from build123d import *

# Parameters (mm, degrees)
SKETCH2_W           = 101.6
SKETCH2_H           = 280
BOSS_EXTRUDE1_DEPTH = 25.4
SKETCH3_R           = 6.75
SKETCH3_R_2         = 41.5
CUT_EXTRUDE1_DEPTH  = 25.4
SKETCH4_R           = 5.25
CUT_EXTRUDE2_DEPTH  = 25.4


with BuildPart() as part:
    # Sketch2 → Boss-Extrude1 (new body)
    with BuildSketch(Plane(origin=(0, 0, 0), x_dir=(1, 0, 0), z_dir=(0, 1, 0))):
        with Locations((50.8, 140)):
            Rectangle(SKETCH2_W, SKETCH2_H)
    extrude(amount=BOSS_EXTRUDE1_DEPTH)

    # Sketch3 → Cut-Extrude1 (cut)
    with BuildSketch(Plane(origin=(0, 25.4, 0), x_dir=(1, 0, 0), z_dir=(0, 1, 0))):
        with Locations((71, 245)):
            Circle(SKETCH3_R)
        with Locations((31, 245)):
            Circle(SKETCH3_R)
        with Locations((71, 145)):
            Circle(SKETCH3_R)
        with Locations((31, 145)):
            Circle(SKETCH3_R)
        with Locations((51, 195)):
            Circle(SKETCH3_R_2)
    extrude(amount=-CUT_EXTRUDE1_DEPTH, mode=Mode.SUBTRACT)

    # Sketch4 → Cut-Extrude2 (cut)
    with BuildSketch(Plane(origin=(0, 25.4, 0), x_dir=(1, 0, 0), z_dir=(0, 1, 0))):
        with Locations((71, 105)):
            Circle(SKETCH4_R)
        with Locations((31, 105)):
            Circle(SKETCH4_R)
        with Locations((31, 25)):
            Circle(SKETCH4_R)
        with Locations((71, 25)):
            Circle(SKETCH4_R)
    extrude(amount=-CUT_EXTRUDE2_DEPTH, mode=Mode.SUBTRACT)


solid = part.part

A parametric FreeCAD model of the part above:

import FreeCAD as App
import Part
import Sketcher
Q = App.Units.Quantity

doc = App.newDocument("Part")
body = doc.addObject("PartDesign::Body", "Body")

sketch1 = body.newObject("Sketcher::SketchObject", "Sketch")
sketch1.AttachmentSupport = (doc.getObject("XZ_Plane"), [""])
sketch1.MapMode = "FlatFace"
sketch1.addGeometry([
    Part.LineSegment(App.Vector(0, -280, 0), App.Vector(0, 0, 0)),
    Part.LineSegment(App.Vector(0, 0, 0), App.Vector(102, 0, 0)),
    Part.LineSegment(App.Vector(102, 0, 0), App.Vector(102, -280, 0)),
    Part.LineSegment(App.Vector(102, -280, 0), App.Vector(0, -280, 0)),
], False)
sketch1.addConstraint([
    Sketcher.Constraint("Coincident", 0, 2, 1, 1),
    Sketcher.Constraint("Coincident", 1, 2, 2, 1),
    Sketcher.Constraint("Coincident", 2, 2, 3, 1),
    Sketcher.Constraint("Coincident", 3, 2, 0, 1),
    Sketcher.Constraint("Vertical", 0),
    Sketcher.Constraint("Horizontal", 1),
    Sketcher.Constraint("Vertical", 2),
    Sketcher.Constraint("Horizontal", 3),
    Sketcher.Constraint("Coincident", 0, 2, -1, 1),
    Sketcher.Constraint("DistanceY", 0, 1, 0, 2, Q("280 mm")),
    Sketcher.Constraint("DistanceX", 1, 1, 1, 2, Q("101.6 mm")),
])
pad1 = body.newObject("PartDesign::Pad", "Pad")
pad1.Profile = sketch1
pad1.Length = 25.4
pad1.Reversed = True

sketch2 = body.newObject("Sketcher::SketchObject", "Sketch001")
sketch2.AttachmentSupport = (doc.getObject("XZ_Plane"), [""])
sketch2.MapMode = "FlatFace"
sketch2.AttachmentOffset = App.Placement(App.Vector(0, 0, -25.4), App.Rotation())
sketch2.addGeometry([
    Part.Circle(App.Vector(71, -245, 0), App.Vector(0, 0, 1), 7),
    Part.Circle(App.Vector(31, -245, 0), App.Vector(0, 0, 1), 7),
    Part.Circle(App.Vector(71, -145, 0), App.Vector(0, 0, 1), 7),
    Part.Circle(App.Vector(31, -145, 0), App.Vector(0, 0, 1), 7),
    Part.Circle(App.Vector(51, -195, 0), App.Vector(0, 0, 1), 42),
], False)
sketch2.addConstraint([
    Sketcher.Constraint("Equal", 0, 1),
    Sketcher.Constraint("Equal", 1, 2),
    Sketcher.Constraint("Equal", 2, 3),
    Sketcher.Constraint("Horizontal", 0, 3, 1, 3),
    Sketcher.Constraint("Horizontal", 2, 3, 3, 3),
    Sketcher.Constraint("Vertical", 0, 3, 2, 3),
    Sketcher.Constraint("Vertical", 1, 3, 3, 3),
    Sketcher.Constraint("Diameter", 4, Q("83 mm")),
    Sketcher.Constraint("Diameter", 0, Q("13.5 mm")),
    Sketcher.Constraint("DistanceX", -1, 1, 0, 3, Q("71 mm")),
    Sketcher.Constraint("DistanceY", 0, 3, -1, 1, Q("245 mm")),
    Sketcher.Constraint("DistanceX", -1, 1, 1, 3, Q("31 mm")),
    Sketcher.Constraint("DistanceY", 2, 3, -1, 1, Q("145 mm")),
    Sketcher.Constraint("DistanceX", -1, 1, 4, 3, Q("51 mm")),
    Sketcher.Constraint("DistanceY", 4, 3, -1, 1, Q("195 mm")),
])
pocket1 = body.newObject("PartDesign::Pocket", "Pocket")
pocket1.Profile = sketch2
pocket1.Length = 25.4
pocket1.Reversed = True

sketch3 = body.newObject("Sketcher::SketchObject", "Sketch002")
sketch3.AttachmentSupport = (doc.getObject("XZ_Plane"), [""])
sketch3.MapMode = "FlatFace"
sketch3.AttachmentOffset = App.Placement(App.Vector(0, 0, -25.4), App.Rotation())
sketch3.addGeometry([
    Part.Circle(App.Vector(71, -105, 0), App.Vector(0, 0, 1), 5),
    Part.Circle(App.Vector(31, -105, 0), App.Vector(0, 0, 1), 5),
    Part.Circle(App.Vector(31, -25, 0), App.Vector(0, 0, 1), 5),
    Part.Circle(App.Vector(71, -25, 0), App.Vector(0, 0, 1), 5),
], False)
sketch3.addConstraint([
    Sketcher.Constraint("Equal", 0, 1),
    Sketcher.Constraint("Equal", 1, 2),
    Sketcher.Constraint("Equal", 2, 3),
    Sketcher.Constraint("Horizontal", 0, 3, 1, 3),
    Sketcher.Constraint("Horizontal", 2, 3, 3, 3),
    Sketcher.Constraint("Vertical", 1, 3, 2, 3),
    Sketcher.Constraint("Vertical", 0, 3, 3, 3),
    Sketcher.Constraint("Diameter", 0, Q("10.5 mm")),
    Sketcher.Constraint("DistanceX", -1, 1, 0, 3, Q("71 mm")),
    Sketcher.Constraint("DistanceY", 0, 3, -1, 1, Q("105 mm")),
    Sketcher.Constraint("DistanceX", -1, 1, 1, 3, Q("31 mm")),
    Sketcher.Constraint("DistanceY", 2, 3, -1, 1, Q("25 mm")),
])
pocket2 = body.newObject("PartDesign::Pocket", "Pocket001")
pocket2.Profile = sketch3
pocket2.Length = 25.4
pocket2.Reversed = True

doc.recompute()
